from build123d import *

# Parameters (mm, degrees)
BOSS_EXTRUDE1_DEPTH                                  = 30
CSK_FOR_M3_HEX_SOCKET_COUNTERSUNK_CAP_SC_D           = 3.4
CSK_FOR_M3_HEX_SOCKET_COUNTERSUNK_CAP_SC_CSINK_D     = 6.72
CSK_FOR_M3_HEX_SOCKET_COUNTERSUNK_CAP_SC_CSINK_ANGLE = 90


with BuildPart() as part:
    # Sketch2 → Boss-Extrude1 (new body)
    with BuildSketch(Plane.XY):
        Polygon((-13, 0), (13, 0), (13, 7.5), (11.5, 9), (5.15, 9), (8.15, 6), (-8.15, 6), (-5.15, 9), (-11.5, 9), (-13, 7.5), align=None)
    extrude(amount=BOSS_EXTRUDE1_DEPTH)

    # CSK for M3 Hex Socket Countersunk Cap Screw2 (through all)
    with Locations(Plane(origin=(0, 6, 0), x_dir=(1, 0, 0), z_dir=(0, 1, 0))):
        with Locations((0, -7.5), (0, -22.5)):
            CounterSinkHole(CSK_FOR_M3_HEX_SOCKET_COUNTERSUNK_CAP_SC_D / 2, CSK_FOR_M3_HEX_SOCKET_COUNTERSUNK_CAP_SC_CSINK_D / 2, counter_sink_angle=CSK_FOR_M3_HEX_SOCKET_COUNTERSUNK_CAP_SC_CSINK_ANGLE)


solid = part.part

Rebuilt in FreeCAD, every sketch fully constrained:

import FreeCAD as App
import Part
import Sketcher

doc = App.newDocument("Part")
body = doc.addObject("PartDesign::Body", "Body")

# Sketch on XY plane
sketch1 = body.newObject("Sketcher::SketchObject", "Sketch")
sketch1.AttachmentSupport = (doc.getObject("XY_Plane"), [""])
sketch1.MapMode = "FlatFace"
sketch1.addGeometry(Part.LineSegment(App.Vector(-13, 0, 0), App.Vector(13, 0, 0)), False)
sketch1.addGeometry(Part.LineSegment(App.Vector(13, 0, 0), App.Vector(13, 7.5, 0)), False)
sketch1.addGeometry(Part.LineSegment(App.Vector(13, 7.5, 0), App.Vector(11.5, 9, 0)), False)
sketch1.addGeometry(Part.LineSegment(App.Vector(11.5, 9, 0), App.Vector(5.15, 9, 0)), False)
sketch1.addGeometry(Part.LineSegment(App.Vector(5.15, 9, 0), App.Vector(8.15, 6, 0)), False)
sketch1.addGeometry(Part.LineSegment(App.Vector(8.15, 6, 0), App.Vector(-8.15, 6, 0)), False)
sketch1.addGeometry(Part.LineSegment(App.Vector(-8.15, 6, 0), App.Vector(-5.15, 9, 0)), False)
sketch1.addGeometry(Part.LineSegment(App.Vector(-5.15, 9, 0), App.Vector(-11.5, 9, 0)), False)
sketch1.addGeometry(Part.LineSegment(App.Vector(-11.5, 9, 0), App.Vector(-13, 7.5, 0)), False)
sketch1.addGeometry(Part.LineSegment(App.Vector(-13, 7.5, 0), App.Vector(-13, 0, 0)), False)
sketch1.addConstraint(Sketcher.Constraint("Coincident", 0, 2, 1, 1))
sketch1.addConstraint(Sketcher.Constraint("Coincident", 1, 2, 2, 1))
sketch1.addConstraint(Sketcher.Constraint("Coincident", 2, 2, 3, 1))
sketch1.addConstraint(Sketcher.Constraint("Coincident", 3, 2, 4, 1))
sketch1.addConstraint(Sketcher.Constraint("Coincident", 4, 2, 5, 1))
sketch1.addConstraint(Sketcher.Constraint("Coincident", 5, 2, 6, 1))
sketch1.addConstraint(Sketcher.Constraint("Coincident", 6, 2, 7, 1))
sketch1.addConstraint(Sketcher.Constraint("Coincident", 7, 2, 8, 1))
sketch1.addConstraint(Sketcher.Constraint("Coincident", 8, 2, 9, 1))
sketch1.addConstraint(Sketcher.Constraint("Coincident", 9, 2, 0, 1))
sketch1.addConstraint(Sketcher.Constraint("Horizontal", 0))
sketch1.addConstraint(Sketcher.Constraint("Vertical", 1))
sketch1.addConstraint(Sketcher.Constraint("Horizontal", 3))
sketch1.addConstraint(Sketcher.Constraint("Horizontal", 5))
sketch1.addConstraint(Sketcher.Constraint("Horizontal", 7))
sketch1.addConstraint(Sketcher.Constraint("Vertical", 9))
sketch1.addConstraint(Sketcher.Constraint("Symmetric", 0, 2, 9, 2, -1, 1))
sketch1.addConstraint(Sketcher.Constraint("Symmetric", 3, 2, 6, 2, -2))
sketch1.addConstraint(Sketcher.Constraint("Parallel", 2, 4))
sketch1.addConstraint(Sketcher.Constraint("Perpendicular", 4, 6))
sketch1.addConstraint(Sketcher.Constraint("Parallel", 6, 8))
sketch1.addConstraint(Sketcher.Constraint("Horizontal", 1, 2, 8, 2))
sketch1.addConstraint(Sketcher.Constraint("Equal", 3, 7))
sketch1.addConstraint(Sketcher.Constraint("DistanceX", 0, 1, 0, 2, 26.0))
sketch1.addConstraint(Sketcher.Constraint("DistanceX", 5, 2, 5, 1, 16.3))
sketch1.addConstraint(Sketcher.Constraint("DistanceY", 1, 1, 1, 2, 7.5))
sketch1.addConstraint(Sketcher.Constraint("DistanceY", -1, 1, 2, 2, 9.0))
sketch1.addConstraint(Sketcher.Constraint("DistanceY", -1, 1, 4, 2, 6.0))
pad1 = body.newObject("PartDesign::Pad", "Pad")
pad1.Profile = sketch1
pad1.Length = 30

# Sketch on XZ plane
sketch2 = body.newObject("Sketcher::SketchObject", "Sketch001")
sketch2.AttachmentSupport = (doc.getObject("XZ_Plane"), [""])
sketch2.MapMode = "FlatFace"
sketch2.AttachmentOffset = App.Placement(App.Vector(0, 0, -6), App.Rotation())
sketch2.addGeometry(Part.Circle(App.Vector(0, 7.5, 0), App.Vector(0, 0, 1), 1.7), False)
sketch2.addGeometry(Part.Circle(App.Vector(0, 22.5, 0), App.Vector(0, 0, 1), 1.7), False)
sketch2.addConstraint(Sketcher.Constraint("Equal", 0, 1))
sketch2.addConstraint(Sketcher.Constraint("PointOnObject", 0, 3, -2))
sketch2.addConstraint(Sketcher.Constraint("PointOnObject", 1, 3, -2))
sketch2.addConstraint(Sketcher.Constraint("Diameter", 0, 3.4))
sketch2.addConstraint(Sketcher.Constraint("DistanceY", 0, 3, 1, 3, 15.0))
sketch2.addConstraint(Sketcher.Constraint("DistanceY", -1, 1, 0, 3, 7.5))
doc.recompute()
hole = body.newObject("PartDesign::Hole", "Hole")
hole.Profile = sketch2
hole.ThreadType = "None"
hole.Diameter = 3.4
hole.DepthType = "ThroughAll"
hole.HoleCutType = "Countersink"
hole.HoleCutDiameter = 6.72
hole.HoleCutCountersinkAngle = 90
hole.Reversed = True

doc.recompute()
